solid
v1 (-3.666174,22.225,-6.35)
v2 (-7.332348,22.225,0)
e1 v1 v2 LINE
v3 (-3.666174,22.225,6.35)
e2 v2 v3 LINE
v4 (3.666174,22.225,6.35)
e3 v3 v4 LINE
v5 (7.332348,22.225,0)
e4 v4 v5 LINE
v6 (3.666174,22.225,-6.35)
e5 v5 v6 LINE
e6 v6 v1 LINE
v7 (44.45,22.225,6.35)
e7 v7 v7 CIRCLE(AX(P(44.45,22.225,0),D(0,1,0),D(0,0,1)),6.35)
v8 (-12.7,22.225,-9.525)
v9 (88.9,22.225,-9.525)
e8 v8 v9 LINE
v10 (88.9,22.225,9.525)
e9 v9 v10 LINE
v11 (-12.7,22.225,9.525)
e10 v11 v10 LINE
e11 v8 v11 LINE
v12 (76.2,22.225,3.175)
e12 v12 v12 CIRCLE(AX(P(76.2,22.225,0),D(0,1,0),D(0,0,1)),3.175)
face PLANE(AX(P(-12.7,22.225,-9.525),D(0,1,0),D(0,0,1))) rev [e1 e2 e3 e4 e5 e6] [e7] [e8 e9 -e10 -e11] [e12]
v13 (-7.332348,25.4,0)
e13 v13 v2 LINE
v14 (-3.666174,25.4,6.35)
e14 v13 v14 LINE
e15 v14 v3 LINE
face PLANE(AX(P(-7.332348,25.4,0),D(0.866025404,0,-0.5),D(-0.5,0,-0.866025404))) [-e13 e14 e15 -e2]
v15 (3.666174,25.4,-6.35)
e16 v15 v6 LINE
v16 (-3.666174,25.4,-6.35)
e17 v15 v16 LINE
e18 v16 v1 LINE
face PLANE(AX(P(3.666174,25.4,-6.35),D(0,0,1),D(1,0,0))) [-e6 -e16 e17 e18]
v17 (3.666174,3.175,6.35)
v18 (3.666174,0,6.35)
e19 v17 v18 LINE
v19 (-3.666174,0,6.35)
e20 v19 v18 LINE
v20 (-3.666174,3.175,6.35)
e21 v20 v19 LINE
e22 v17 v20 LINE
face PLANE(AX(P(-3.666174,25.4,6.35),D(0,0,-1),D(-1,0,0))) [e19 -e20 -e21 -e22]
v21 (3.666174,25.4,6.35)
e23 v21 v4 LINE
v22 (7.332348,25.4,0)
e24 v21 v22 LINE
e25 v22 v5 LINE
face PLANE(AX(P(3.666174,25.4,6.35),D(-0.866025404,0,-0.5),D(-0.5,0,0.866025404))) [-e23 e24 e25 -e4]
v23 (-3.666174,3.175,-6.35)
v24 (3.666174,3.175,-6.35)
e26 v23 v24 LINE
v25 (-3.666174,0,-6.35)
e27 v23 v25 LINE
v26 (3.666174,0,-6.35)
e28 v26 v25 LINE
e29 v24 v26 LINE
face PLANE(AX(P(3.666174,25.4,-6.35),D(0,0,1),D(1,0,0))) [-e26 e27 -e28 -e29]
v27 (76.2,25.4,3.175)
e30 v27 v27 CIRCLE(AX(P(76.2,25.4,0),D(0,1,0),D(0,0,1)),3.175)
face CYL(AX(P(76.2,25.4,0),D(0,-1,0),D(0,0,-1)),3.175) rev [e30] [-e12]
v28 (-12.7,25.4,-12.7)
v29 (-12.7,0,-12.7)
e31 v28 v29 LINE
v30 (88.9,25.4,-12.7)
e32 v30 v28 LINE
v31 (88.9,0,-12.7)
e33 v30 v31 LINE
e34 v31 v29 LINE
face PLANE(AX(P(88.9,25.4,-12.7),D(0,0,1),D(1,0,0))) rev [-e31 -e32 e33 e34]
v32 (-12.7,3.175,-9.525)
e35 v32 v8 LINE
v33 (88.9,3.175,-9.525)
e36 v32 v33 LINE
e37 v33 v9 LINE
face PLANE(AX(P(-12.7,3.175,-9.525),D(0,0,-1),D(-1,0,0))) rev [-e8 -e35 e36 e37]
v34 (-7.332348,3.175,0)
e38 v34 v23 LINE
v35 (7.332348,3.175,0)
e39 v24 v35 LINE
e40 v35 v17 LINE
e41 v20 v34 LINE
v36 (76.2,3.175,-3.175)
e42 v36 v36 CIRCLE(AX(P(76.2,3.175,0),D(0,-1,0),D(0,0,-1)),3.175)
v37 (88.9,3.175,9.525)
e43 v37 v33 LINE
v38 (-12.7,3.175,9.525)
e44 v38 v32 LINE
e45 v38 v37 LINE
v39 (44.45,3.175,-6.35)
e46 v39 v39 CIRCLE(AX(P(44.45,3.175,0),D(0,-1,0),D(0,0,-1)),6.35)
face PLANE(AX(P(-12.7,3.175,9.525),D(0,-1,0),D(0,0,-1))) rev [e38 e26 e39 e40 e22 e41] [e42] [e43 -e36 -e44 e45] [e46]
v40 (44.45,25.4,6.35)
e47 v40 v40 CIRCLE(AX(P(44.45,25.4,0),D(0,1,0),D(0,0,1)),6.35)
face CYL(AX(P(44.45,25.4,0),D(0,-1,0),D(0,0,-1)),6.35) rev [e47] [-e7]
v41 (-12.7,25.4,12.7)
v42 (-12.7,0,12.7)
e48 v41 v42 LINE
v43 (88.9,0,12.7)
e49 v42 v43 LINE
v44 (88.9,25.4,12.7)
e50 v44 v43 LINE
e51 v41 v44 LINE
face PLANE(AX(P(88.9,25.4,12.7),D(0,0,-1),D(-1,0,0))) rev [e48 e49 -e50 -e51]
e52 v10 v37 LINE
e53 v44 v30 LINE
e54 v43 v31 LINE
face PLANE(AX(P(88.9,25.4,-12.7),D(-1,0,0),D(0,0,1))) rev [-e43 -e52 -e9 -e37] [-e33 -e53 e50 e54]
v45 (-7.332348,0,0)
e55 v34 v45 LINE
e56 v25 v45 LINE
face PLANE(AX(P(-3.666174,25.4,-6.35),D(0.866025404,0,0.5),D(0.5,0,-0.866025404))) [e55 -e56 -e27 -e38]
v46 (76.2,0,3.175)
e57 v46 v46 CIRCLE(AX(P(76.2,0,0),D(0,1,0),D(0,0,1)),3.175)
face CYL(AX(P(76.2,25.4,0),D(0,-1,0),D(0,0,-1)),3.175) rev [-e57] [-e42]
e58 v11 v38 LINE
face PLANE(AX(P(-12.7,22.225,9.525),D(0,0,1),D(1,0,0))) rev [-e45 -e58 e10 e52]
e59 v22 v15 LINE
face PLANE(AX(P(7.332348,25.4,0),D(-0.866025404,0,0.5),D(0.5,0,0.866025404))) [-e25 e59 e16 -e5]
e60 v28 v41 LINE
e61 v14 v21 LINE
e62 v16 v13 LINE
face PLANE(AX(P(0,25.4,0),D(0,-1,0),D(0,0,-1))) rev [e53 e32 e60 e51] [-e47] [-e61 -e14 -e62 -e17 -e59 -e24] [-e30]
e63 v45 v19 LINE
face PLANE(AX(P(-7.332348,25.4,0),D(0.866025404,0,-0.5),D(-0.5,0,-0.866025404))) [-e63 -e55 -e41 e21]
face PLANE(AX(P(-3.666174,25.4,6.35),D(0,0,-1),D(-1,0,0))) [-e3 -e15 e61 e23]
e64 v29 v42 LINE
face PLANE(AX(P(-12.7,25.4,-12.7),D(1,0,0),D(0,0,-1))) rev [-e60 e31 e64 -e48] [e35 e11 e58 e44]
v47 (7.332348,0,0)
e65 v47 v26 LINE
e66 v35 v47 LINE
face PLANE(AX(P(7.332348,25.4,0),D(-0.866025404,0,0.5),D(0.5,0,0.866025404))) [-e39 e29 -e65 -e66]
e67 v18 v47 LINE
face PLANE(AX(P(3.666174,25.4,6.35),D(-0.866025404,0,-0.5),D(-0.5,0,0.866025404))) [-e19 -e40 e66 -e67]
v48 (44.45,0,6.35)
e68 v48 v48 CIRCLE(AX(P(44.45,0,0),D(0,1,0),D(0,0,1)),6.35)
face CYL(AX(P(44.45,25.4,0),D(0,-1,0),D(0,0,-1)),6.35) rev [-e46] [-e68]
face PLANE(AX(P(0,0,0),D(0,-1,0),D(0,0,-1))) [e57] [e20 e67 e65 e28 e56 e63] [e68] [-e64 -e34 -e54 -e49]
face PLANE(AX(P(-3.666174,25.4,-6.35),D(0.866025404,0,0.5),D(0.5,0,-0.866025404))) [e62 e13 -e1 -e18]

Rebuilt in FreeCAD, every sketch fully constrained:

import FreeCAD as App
import Part
import Sketcher

V = App.Vector
Q = App.Units.Quantity

doc = App.newDocument("Part")
params = doc.addObject("Spreadsheet::Sheet", "Params")
for row, (alias, value) in enumerate([
    ("sketch1_diameter", "0.5 in"),
    ("sketch1_diameter2", "0.25 in"),
    ("sketch1_width", "4 in"),
    ("sketch1_height", "1 in"),
    ("pad1_length", "1 in"),
    ("sketch2_width", "0.75 in"),
], start=1):
    params.set(f"A{row}", alias)
    params.set(f"B{row}", "=" + value)
    params.setAlias(f"B{row}", alias)

body = doc.addObject("PartDesign::Body", "Body")

# Sketch on XZ plane
sketch1 = body.newObject("Sketcher::SketchObject", "Sketch")
sketch1.AttachmentSupport = (doc.getObject("XZ_Plane"), [""])
sketch1.MapMode = "FlatFace"
sketch1.addGeometry([
    Part.LineSegment(V(-12.7, -12.7, 0), V(-12.7, 12.7, 0)),  # 0
    Part.LineSegment(V(-12.7, 12.7, 0), V(88.9, 12.7, 0)),  # 1
    Part.LineSegment(V(88.9, 12.7, 0), V(88.9, -12.7, 0)),  # 2
    Part.LineSegment(V(88.9, -12.7, 0), V(-12.7, -12.7, 0)),  # 3
    Part.LineSegment(V(3.7, -6.3, 0), V(7.3, 0, 0)),  # 4
    Part.LineSegment(V(7.3, 0, 0), V(3.7, 6.3, 0)),  # 5
    Part.LineSegment(V(3.7, 6.3, 0), V(-3.7, 6.3, 0)),  # 6
    Part.LineSegment(V(-3.7, 6.3, 0), V(-7.3, 0, 0)),  # 7
    Part.LineSegment(V(-7.3, 0, 0), V(-3.7, -6.3, 0)),  # 8
    Part.LineSegment(V(-3.7, -6.3, 0), V(3.7, -6.3, 0)),  # 9
    Part.Circle(V(44.5, 0, 0), V(0, 0, 1), 6.3),  # 10
    Part.Circle(V(76.2, 0, 0), V(0, 0, 1), 3.2),  # 11
], False)
sketch1.addConstraint([
    Sketcher.Constraint("Coincident", 0, 2, 1, 1),
    Sketcher.Constraint("Coincident", 1, 2, 2, 1),
    Sketcher.Constraint("Coincident", 2, 2, 3, 1),
    Sketcher.Constraint("Coincident", 3, 2, 0, 1),
    Sketcher.Constraint("Coincident", 4, 2, 5, 1),
    Sketcher.Constraint("Coincident", 5, 2, 6, 1),
    Sketcher.Constraint("Coincident", 6, 2, 7, 1),
    Sketcher.Constraint("Coincident", 7, 2, 8, 1),
    Sketcher.Constraint("Coincident", 8, 2, 9, 1),
    Sketcher.Constraint("Coincident", 9, 2, 4, 1),
    Sketcher.Constraint("Vertical", 0),
    Sketcher.Constraint("Horizontal", 1),
    Sketcher.Constraint("Vertical", 2),
    Sketcher.Constraint("Horizontal", 3),
    Sketcher.Constraint("Horizontal", 6),
    Sketcher.Constraint("Horizontal", 9),
    Sketcher.Constraint("Symmetric", 4, 2, 7, 2, -1, 1),
    Sketcher.Constraint("Symmetric", 5, 2, 8, 2, -1, 1),
    Sketcher.Constraint("PointOnObject", 10, 3, -1),
    Sketcher.Constraint("PointOnObject", 11, 3, -1),
    Sketcher.Constraint("PointOnObject", 4, 2, -1),
    Sketcher.Constraint("Parallel", 4, 7),
    Sketcher.Constraint("Vertical", 6, 2, 8, 2),
    Sketcher.Constraint("Diameter", 10, Q("0.5 in")),
    Sketcher.Constraint("Diameter", 11, Q("0.25 in")),
    Sketcher.Constraint("DistanceX", 1, 1, 1, 2, Q("4 in")),
    Sketcher.Constraint("DistanceY", 0, 1, 0, 2, Q("1 in")),
    Sketcher.Constraint("DistanceX", -1, 1, 11, 3, Q("3 in")),
    Sketcher.Constraint("Angle", 4, Q("60 deg")),
    Sketcher.Constraint("DistanceX", 0, 2, -1, 1, Q("0.5 in")),
    Sketcher.Constraint("DistanceY", -1, 1, 0, 2, Q("0.5 in")),
    Sketcher.Constraint("DistanceY", 8, 2, 6, 2, Q("0.5 in")),
    Sketcher.Constraint("DistanceX", -1, 1, 10, 3, Q("1.75 in")),
    Sketcher.Constraint("DistanceX", 6, 2, 6, 1, 7.332348),
])
sketch1.setExpression("Constraints[23]", "Params.sketch1_diameter")
sketch1.setExpression("Constraints[24]", "Params.sketch1_diameter2")
sketch1.setExpression("Constraints[25]", "Params.sketch1_width")
sketch1.setExpression("Constraints[26]", "Params.sketch1_height")
pad1 = body.newObject("PartDesign::Pad", "Pad")
pad1.Profile = sketch1
pad1.setExpression("Length", "Params.pad1_length")
pad1.Reversed = True

# Sketch on YZ plane
sketch2 = body.newObject("Sketcher::SketchObject", "Sketch001")
sketch2.AttachmentSupport = (doc.getObject("YZ_Plane"), [""])
sketch2.MapMode = "FlatFace"
sketch2.AttachmentOffset = App.Placement(V(0, 0, 3.5 * 25.4), App.Rotation())
sketch2.addGeometry([
    Part.LineSegment(V(22, 10, 0), V(3, 10, 0)),
    Part.LineSegment(V(3, 10, 0), V(3, -10, 0)),
    Part.LineSegment(V(3, -10, 0), V(22, -10, 0)),
    Part.LineSegment(V(22, -10, 0), V(22, 10, 0)),
], False)
sketch2.addConstraint([
    Sketcher.Constraint("Coincident", 0, 2, 1, 1),
    Sketcher.Constraint("Coincident", 1, 2, 2, 1),
    Sketcher.Constraint("Coincident", 2, 2, 3, 1),
    Sketcher.Constraint("Coincident", 3, 2, 0, 1),
    Sketcher.Constraint("Horizontal", 0),
    Sketcher.Constraint("Vertical", 1),
    Sketcher.Constraint("Horizontal", 2),
    Sketcher.Constraint("Vertical", 3),
    Sketcher.Constraint("Equal", 2, 1),
    Sketcher.Constraint("DistanceX", 0, 2, 0, 1, Q("0.75 in")),
    Sketcher.Constraint("DistanceX", -1, 1, 0, 2, Q("0.125 in")),
    Sketcher.Constraint("DistanceY", -1, 1, 0, 2, Q("0.375 in")),
])
sketch2.setExpression("Constraints[9]", "Params.sketch2_width")
pocket1 = body.newObject("PartDesign::Pocket", "Pocket")
pocket1.Profile = sketch2
pocket1.Type = "ThroughAll"

doc.recompute()
